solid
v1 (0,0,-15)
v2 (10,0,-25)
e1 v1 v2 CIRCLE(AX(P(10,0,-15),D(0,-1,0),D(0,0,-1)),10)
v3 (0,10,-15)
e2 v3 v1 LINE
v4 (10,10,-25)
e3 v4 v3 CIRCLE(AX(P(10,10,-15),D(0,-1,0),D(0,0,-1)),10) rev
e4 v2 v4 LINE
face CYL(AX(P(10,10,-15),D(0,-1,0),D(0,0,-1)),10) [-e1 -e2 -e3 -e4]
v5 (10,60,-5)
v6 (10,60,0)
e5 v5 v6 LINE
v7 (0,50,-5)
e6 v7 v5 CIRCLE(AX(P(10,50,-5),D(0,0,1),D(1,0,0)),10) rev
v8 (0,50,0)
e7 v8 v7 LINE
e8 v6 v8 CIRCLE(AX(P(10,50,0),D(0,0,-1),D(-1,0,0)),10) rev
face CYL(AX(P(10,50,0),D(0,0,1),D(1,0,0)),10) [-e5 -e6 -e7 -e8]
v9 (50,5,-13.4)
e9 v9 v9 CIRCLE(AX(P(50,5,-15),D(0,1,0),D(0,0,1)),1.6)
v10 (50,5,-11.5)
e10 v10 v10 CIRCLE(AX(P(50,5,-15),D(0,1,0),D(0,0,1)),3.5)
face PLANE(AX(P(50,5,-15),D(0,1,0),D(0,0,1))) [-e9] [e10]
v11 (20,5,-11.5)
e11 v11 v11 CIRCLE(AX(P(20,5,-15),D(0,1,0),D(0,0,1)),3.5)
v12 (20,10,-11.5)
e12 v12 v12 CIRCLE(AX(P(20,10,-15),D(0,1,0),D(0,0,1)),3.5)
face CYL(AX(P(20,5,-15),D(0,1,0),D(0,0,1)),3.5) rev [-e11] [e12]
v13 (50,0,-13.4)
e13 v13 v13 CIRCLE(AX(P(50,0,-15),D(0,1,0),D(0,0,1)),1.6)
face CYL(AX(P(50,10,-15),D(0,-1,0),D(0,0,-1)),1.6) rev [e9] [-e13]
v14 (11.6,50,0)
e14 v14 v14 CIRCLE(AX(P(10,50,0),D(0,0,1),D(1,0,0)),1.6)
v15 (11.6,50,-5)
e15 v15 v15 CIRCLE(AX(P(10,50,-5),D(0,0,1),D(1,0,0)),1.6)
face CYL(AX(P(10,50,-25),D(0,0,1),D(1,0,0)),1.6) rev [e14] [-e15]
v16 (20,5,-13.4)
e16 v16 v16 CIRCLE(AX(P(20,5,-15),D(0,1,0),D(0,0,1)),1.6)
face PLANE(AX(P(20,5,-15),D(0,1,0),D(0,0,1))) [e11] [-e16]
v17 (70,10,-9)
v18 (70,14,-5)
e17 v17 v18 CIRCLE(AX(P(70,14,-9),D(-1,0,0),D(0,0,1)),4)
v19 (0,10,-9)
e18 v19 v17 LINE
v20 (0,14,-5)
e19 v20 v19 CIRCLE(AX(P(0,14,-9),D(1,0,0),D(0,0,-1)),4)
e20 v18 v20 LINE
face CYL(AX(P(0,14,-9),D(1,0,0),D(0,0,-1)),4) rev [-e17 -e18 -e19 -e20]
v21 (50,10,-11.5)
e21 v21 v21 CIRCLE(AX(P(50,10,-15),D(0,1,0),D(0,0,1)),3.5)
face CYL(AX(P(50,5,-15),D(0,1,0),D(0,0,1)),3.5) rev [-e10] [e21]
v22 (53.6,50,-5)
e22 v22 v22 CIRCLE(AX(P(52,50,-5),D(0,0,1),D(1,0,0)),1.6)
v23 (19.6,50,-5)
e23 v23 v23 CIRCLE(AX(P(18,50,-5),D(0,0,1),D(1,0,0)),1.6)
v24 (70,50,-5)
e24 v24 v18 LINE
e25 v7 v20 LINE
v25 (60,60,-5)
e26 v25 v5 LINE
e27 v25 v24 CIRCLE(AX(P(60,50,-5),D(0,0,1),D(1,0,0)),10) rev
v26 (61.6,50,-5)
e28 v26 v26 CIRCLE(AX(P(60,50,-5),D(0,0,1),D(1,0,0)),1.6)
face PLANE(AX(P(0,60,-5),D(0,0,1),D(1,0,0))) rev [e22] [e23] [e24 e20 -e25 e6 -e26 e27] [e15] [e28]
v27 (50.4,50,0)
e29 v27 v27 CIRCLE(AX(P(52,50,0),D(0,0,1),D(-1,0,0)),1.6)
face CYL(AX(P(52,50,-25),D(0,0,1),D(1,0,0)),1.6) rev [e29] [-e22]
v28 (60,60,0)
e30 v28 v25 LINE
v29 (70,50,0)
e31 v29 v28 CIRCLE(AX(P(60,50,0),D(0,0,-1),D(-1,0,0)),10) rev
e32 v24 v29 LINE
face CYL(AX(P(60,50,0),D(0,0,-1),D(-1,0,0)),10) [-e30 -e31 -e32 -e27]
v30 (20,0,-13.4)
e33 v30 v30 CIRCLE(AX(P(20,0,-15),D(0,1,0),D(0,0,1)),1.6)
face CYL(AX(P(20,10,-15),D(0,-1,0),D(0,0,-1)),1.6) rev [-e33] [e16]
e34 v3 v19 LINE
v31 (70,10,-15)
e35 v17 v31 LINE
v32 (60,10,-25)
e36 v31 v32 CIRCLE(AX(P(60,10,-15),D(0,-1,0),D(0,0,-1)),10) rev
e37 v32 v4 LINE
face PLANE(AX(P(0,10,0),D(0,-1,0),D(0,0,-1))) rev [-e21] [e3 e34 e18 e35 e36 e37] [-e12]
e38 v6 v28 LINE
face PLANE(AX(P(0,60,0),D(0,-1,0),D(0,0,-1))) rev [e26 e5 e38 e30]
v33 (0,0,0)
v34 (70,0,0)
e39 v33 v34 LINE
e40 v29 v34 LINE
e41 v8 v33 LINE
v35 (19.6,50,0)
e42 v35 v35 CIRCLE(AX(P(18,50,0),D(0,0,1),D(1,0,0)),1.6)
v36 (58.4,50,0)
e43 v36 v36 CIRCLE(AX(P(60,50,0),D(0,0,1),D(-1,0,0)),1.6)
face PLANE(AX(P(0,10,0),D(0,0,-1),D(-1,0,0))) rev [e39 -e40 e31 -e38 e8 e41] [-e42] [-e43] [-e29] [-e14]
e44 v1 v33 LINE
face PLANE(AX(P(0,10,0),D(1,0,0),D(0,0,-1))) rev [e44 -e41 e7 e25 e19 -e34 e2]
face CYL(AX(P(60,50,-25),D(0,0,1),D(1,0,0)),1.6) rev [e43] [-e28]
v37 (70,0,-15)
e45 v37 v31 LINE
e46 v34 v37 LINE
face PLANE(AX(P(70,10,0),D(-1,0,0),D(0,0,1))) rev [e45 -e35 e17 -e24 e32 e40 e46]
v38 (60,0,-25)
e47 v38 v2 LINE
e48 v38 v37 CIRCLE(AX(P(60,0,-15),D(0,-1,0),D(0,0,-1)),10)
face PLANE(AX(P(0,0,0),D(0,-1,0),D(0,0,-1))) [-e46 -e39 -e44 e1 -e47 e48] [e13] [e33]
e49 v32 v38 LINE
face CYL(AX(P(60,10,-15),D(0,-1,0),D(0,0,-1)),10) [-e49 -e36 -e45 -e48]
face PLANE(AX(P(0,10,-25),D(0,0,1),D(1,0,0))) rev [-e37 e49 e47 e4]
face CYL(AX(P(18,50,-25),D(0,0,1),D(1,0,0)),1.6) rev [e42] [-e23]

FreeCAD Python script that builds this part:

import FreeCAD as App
import Part
import Sketcher
from FreeCAD import Vector
Q = App.Units.Quantity


def edges_at(feature, points):
    """Names of the edges that pass closest to the given points."""
    edges = feature.Shape.Edges
    near = lambda p: min(range(len(edges)), key=lambda i: edges[i].distToShape(Part.Vertex(*p))[0])
    return sorted({f"Edge{near(p) + 1}" for p in points})


def add_polygon(sketch, points):
    """Adds a closed chain of lines whose ends are joined by coincident constraints."""
    first, n = sketch.GeometryCount, len(points)
    for a, b in zip(points, points[1:] + points[:1]):
        sketch.addGeometry(Part.LineSegment(App.Vector(*a, 0), App.Vector(*b, 0)), False)
    for i in range(n):
        sketch.addConstraint(Sketcher.Constraint("Coincident", first + i, 2, first + (i + 1) % n, 1))

doc = App.newDocument("Part")
body = doc.addObject("PartDesign::Body", "Body")

# Sketch on XZ plane
sketch1 = body.newObject("Sketcher::SketchObject", "Sketch")
sketch1.AttachmentSupport = (doc.getObject("XZ_Plane"), [""])
sketch1.MapMode = "FlatFace"
add_polygon(sketch1, [(0, -25), (0, 0), (70, 0), (70, -25)])  # lines 0-3
sketch1.addGeometry(Part.Circle(Vector(20, -15, 0), Vector(0, 0, 1), 1.6), False)  # 4
sketch1.addGeometry(Part.Circle(Vector(50, -15, 0), Vector(0, 0, 1), 1.6), False)  # 5
sketch1.addConstraint([
    Sketcher.Constraint("Vertical", 0),
    Sketcher.Constraint("Horizontal", 1),
    Sketcher.Constraint("Vertical", 2),
    Sketcher.Constraint("Horizontal", 3),
    Sketcher.Constraint("Coincident", 0, 2, -1, 1),
    Sketcher.Constraint("Equal", 4, 5),
    Sketcher.Constraint("Horizontal", 4, 3, 5, 3),
    Sketcher.Constraint("Diameter", 4, Q("3.2 mm")),
    Sketcher.Constraint("DistanceX", 1, 1, 1, 2, Q("70 mm")),
    Sketcher.Constraint("DistanceY", 0, 1, 0, 2, Q("25 mm")),
    Sketcher.Constraint("DistanceX", -1, 1, 4, 3, Q("20 mm")),
    Sketcher.Constraint("DistanceY", 4, 3, -1, 1, Q("15 mm")),
    Sketcher.Constraint("DistanceX", -1, 1, 5, 3, Q("50 mm")),
])
pad1 = body.newObject("PartDesign::Pad", "Pad")
pad1.Profile = sketch1
pad1.Length = 10
pad1.Reversed = True

# Sketch on XZ plane
sketch2 = body.newObject("Sketcher::SketchObject", "Sketch001")
sketch2.AttachmentSupport = (doc.getObject("XZ_Plane"), [""])
sketch2.MapMode = "FlatFace"
sketch2.AttachmentOffset = App.Placement(Vector(0, 0, -10), App.Rotation())
add_polygon(sketch2, [(0, -5), (0, 0), (70, 0), (70, -5)])  # lines 0-3
sketch2.addConstraint([
    Sketcher.Constraint("Vertical", 0),
    Sketcher.Constraint("Horizontal", 1),
    Sketcher.Constraint("Vertical", 2),
    Sketcher.Constraint("Horizontal", 3),
    Sketcher.Constraint("Coincident", 0, 2, -1, 1),
    Sketcher.Constraint("DistanceX", 1, 1, 1, 2, Q("70 mm")),
    Sketcher.Constraint("DistanceY", 0, 1, 0, 2, Q("5 mm")),
])
pad2 = body.newObject("PartDesign::Pad", "Pad001")
pad2.Profile = sketch2
pad2.Length = 50
pad2.Reversed = True

# Sketch on XZ plane
sketch3 = body.newObject("Sketcher::SketchObject", "Sketch002")
sketch3.AttachmentSupport = (doc.getObject("XZ_Plane"), [""])
sketch3.MapMode = "FlatFace"
sketch3.AttachmentOffset = App.Placement(Vector(0, 0, -10), App.Rotation())
sketch3.addGeometry([
    Part.Circle(Vector(20, -15, 0), Vector(0, 0, 1), 3.5),
    Part.Circle(Vector(50, -15, 0), Vector(0, 0, 1), 3.5),
], False)
sketch3.addConstraint([
    Sketcher.Constraint("Equal", 0, 1),
    Sketcher.Constraint("Horizontal", 0, 3, 1, 3),
    Sketcher.Constraint("Diameter", 0, Q("7 mm")),
    Sketcher.Constraint("DistanceX", -1, 1, 0, 3, Q("20 mm")),
    Sketcher.Constraint("DistanceY", 0, 3, -1, 1, Q("15 mm")),
    Sketcher.Constraint("DistanceX", -1, 1, 1, 3, Q("50 mm")),
])
pocket1 = body.newObject("PartDesign::Pocket", "Pocket")
pocket1.Profile = sketch3
pocket1.Length = 5
pocket1.Reversed = True
doc.recompute()

fillet = body.newObject("PartDesign::Fillet", "Fillet")
fillet.Base = (pocket1, edges_at(pocket1, [(35, 10, -5)]))
fillet.Radius = 4
doc.recompute()

fillet2 = body.newObject("PartDesign::Fillet", "Fillet001")
fillet2.Base = (fillet, edges_at(fillet, [
    (0, 60, -2.5),
    (70, 60, -2.5),
    (0, 5, -25),
    (70, 5, -25),
]))
fillet2.Radius = 10

# Sketch on XY plane
sketch4 = body.newObject("Sketcher::SketchObject", "Sketch003")
sketch4.AttachmentSupport = (doc.getObject("XY_Plane"), [""])
sketch4.MapMode = "FlatFace"
sketch4.addGeometry([
    Part.Circle(Vector(10, 50, 0), Vector(0, 0, 1), 1.6),
    Part.Circle(Vector(18, 50, 0), Vector(0, 0, 1), 1.6),
    Part.Circle(Vector(52, 50, 0), Vector(0, 0, 1), 1.6),
    Part.Circle(Vector(60, 50, 0), Vector(0, 0, 1), 1.6),
], False)
sketch4.addConstraint([
    Sketcher.Constraint("Equal", 0, 1),
    Sketcher.Constraint("Equal", 1, 2),
    Sketcher.Constraint("Equal", 2, 3),
    Sketcher.Constraint("Horizontal", 0, 3, 1, 3),
    Sketcher.Constraint("Horizontal", 1, 3, 2, 3),
    Sketcher.Constraint("Horizontal", 2, 3, 3, 3),
    Sketcher.Constraint("Diameter", 0, Q("3.2 mm")),
    Sketcher.Constraint("DistanceX", -1, 1, 0, 3, Q("10 mm")),
    Sketcher.Constraint("DistanceY", -1, 1, 0, 3, Q("50 mm")),
    Sketcher.Constraint("DistanceX", -1, 1, 1, 3, Q("18 mm")),
    Sketcher.Constraint("DistanceX", -1, 1, 2, 3, Q("52 mm")),
    Sketcher.Constraint("DistanceX", -1, 1, 3, 3, Q("60 mm")),
])
pocket2 = body.newObject("PartDesign::Pocket", "Pocket001")
pocket2.Profile = sketch4
pocket2.Type = "ThroughAll"

doc.recompute()
